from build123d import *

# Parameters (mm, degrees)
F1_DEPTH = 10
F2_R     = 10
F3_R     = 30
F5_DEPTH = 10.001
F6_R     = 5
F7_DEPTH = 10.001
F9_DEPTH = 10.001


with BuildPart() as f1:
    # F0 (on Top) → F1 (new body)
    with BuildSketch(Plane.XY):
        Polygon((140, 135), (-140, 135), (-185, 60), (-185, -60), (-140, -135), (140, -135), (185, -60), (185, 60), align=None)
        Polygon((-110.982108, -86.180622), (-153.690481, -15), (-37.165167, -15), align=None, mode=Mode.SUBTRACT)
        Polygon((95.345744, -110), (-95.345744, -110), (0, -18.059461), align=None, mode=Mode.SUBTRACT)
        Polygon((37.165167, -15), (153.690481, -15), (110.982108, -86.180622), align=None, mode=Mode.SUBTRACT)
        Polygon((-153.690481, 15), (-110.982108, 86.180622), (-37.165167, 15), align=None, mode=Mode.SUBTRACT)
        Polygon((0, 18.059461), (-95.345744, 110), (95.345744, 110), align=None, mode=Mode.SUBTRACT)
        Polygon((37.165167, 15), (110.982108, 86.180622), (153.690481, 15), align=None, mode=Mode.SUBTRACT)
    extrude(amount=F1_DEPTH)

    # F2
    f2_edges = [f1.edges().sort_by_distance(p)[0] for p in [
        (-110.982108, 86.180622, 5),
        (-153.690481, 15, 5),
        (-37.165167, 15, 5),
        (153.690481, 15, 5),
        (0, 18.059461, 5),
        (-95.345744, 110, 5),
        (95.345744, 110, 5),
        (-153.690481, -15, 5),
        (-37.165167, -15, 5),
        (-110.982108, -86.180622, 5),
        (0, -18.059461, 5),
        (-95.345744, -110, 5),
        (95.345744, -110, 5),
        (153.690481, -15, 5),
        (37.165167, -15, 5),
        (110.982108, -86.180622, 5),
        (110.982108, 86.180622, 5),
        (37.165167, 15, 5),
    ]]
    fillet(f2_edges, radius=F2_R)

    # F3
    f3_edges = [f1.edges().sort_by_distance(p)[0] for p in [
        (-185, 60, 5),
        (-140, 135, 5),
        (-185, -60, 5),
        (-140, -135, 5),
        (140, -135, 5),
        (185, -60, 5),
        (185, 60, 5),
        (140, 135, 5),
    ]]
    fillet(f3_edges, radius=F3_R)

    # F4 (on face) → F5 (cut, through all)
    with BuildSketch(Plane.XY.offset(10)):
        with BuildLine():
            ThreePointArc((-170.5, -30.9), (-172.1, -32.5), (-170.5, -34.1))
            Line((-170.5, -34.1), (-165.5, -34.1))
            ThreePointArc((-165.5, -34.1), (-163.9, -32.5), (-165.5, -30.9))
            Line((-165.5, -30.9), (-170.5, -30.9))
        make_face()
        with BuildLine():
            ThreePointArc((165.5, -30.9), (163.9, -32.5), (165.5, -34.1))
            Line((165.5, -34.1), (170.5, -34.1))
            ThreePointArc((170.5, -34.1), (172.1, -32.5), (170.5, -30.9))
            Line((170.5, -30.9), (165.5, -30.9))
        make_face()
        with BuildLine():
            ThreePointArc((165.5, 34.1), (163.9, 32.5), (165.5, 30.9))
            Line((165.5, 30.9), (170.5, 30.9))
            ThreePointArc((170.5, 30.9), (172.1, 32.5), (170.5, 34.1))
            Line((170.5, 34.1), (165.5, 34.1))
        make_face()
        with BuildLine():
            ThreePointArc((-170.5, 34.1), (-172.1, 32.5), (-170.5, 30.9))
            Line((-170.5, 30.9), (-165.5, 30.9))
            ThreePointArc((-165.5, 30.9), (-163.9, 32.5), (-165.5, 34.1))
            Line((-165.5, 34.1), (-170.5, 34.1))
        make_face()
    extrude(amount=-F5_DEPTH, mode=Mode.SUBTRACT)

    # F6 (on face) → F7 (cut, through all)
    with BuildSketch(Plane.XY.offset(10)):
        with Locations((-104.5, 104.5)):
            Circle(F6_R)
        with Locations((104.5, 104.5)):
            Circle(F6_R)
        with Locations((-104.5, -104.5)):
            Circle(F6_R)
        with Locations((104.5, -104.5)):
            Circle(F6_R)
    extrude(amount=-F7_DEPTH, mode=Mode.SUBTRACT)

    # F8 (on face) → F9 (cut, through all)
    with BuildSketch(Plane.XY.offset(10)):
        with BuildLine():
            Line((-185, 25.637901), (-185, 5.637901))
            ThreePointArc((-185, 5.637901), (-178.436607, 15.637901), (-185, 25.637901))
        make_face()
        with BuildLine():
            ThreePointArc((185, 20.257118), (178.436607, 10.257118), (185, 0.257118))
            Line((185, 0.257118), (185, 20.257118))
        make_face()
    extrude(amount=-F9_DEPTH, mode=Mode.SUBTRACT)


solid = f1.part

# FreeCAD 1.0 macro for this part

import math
import FreeCAD as App
import Part
import Sketcher
from FreeCAD import Vector


def edges_at(feature, points):
    """Names of the edges that pass closest to the given points."""
    edges = feature.Shape.Edges
    near = lambda p: min(range(len(edges)), key=lambda i: edges[i].distToShape(Part.Vertex(*p))[0])
    return sorted({f"Edge{near(p) + 1}" for p in points})

doc = App.newDocument("Part")
body = doc.addObject("PartDesign::Body", "Body")

sketch1 = body.newObject("Sketcher::SketchObject", "Sketch")
sketch1.AttachmentSupport = (doc.getObject("XY_Plane"), [""])
sketch1.MapMode = "FlatFace"
sketch1.addGeometry(Part.LineSegment(Vector(140, 135, 0), Vector(-140, 135, 0)), False)
sketch1.addGeometry(Part.LineSegment(Vector(-140, 135, 0), Vector(-185, 60, 0)), False)
sketch1.addGeometry(Part.LineSegment(Vector(-185, 60, 0), Vector(-185, -60, 0)), False)
sketch1.addGeometry(Part.LineSegment(Vector(-185, -60, 0), Vector(-140, -135, 0)), False)
sketch1.addGeometry(Part.LineSegment(Vector(-140, -135, 0), Vector(140, -135, 0)), False)
sketch1.addGeometry(Part.LineSegment(Vector(140, -135, 0), Vector(185, -60, 0)), False)
sketch1.addGeometry(Part.LineSegment(Vector(185, -60, 0), Vector(185, 60, 0)), False)
sketch1.addGeometry(Part.LineSegment(Vector(185, 60, 0), Vector(140, 135, 0)), False)
sketch1.addGeometry(Part.LineSegment(Vector(0, -18, 0), Vector(95, -110, 0)), False)
sketch1.addGeometry(Part.LineSegment(Vector(95, -110, 0), Vector(-95, -110, 0)), False)
sketch1.addGeometry(Part.LineSegment(Vector(-95, -110, 0), Vector(0, -18, 0)), False)
sketch1.addGeometry(Part.LineSegment(Vector(-37, -15, 0), Vector(-111, -86, 0)), False)
sketch1.addGeometry(Part.LineSegment(Vector(-111, -86, 0), Vector(-154, -15, 0)), False)
sketch1.addGeometry(Part.LineSegment(Vector(-154, -15, 0), Vector(-37, -15, 0)), False)
sketch1.addGeometry(Part.LineSegment(Vector(111, -86, 0), Vector(37, -15, 0)), False)
sketch1.addGeometry(Part.LineSegment(Vector(37, -15, 0), Vector(154, -15, 0)), False)
sketch1.addGeometry(Part.LineSegment(Vector(154, -15, 0), Vector(111, -86, 0)), False)
sketch1.addGeometry(Part.LineSegment(Vector(-37, 15, 0), Vector(-154, 15, 0)), False)
sketch1.addGeometry(Part.LineSegment(Vector(-154, 15, 0), Vector(-111, 86, 0)), False)
sketch1.addGeometry(Part.LineSegment(Vector(-111, 86, 0), Vector(-37, 15, 0)), False)
sketch1.addGeometry(Part.LineSegment(Vector(95, 110, 0), Vector(0, 18, 0)), False)
sketch1.addGeometry(Part.LineSegment(Vector(0, 18, 0), Vector(-95, 110, 0)), False)
sketch1.addGeometry(Part.LineSegment(Vector(-95, 110, 0), Vector(95, 110, 0)), False)
sketch1.addGeometry(Part.LineSegment(Vector(154, 15, 0), Vector(37, 15, 0)), False)
sketch1.addGeometry(Part.LineSegment(Vector(37, 15, 0), Vector(111, 86, 0)), False)
sketch1.addGeometry(Part.LineSegment(Vector(111, 86, 0), Vector(154, 15, 0)), False)
sketch1.addConstraint(Sketcher.Constraint("Coincident", 0, 2, 1, 1))
sketch1.addConstraint(Sketcher.Constraint("Coincident", 1, 2, 2, 1))
sketch1.addConstraint(Sketcher.Constraint("Coincident", 2, 2, 3, 1))
sketch1.addConstraint(Sketcher.Constraint("Coincident", 3, 2, 4, 1))
sketch1.addConstraint(Sketcher.Constraint("Coincident", 4, 2, 5, 1))
sketch1.addConstraint(Sketcher.Constraint("Coincident", 5, 2, 6, 1))
sketch1.addConstraint(Sketcher.Constraint("Coincident", 6, 2, 7, 1))
sketch1.addConstraint(Sketcher.Constraint("Coincident", 7, 2, 0, 1))
sketch1.addConstraint(Sketcher.Constraint("Coincident", 8, 2, 9, 1))
sketch1.addConstraint(Sketcher.Constraint("Coincident", 9, 2, 10, 1))
sketch1.addConstraint(Sketcher.Constraint("Coincident", 10, 2, 8, 1))
sketch1.addConstraint(Sketcher.Constraint("Coincident", 11, 2, 12, 1))
sketch1.addConstraint(Sketcher.Constraint("Coincident", 12, 2, 13, 1))
sketch1.addConstraint(Sketcher.Constraint("Coincident", 13, 2, 11, 1))
sketch1.addConstraint(Sketcher.Constraint("Coincident", 14, 2, 15, 1))
sketch1.addConstraint(Sketcher.Constraint("Coincident", 15, 2, 16, 1))
sketch1.addConstraint(Sketcher.Constraint("Coincident", 16, 2, 14, 1))
sketch1.addConstraint(Sketcher.Constraint("Coincident", 17, 2, 18, 1))
sketch1.addConstraint(Sketcher.Constraint("Coincident", 18, 2, 19, 1))
sketch1.addConstraint(Sketcher.Constraint("Coincident", 19, 2, 17, 1))
sketch1.addConstraint(Sketcher.Constraint("Coincident", 20, 2, 21, 1))
sketch1.addConstraint(Sketcher.Constraint("Coincident", 21, 2, 22, 1))
sketch1.addConstraint(Sketcher.Constraint("Coincident", 22, 2, 20, 1))
sketch1.addConstraint(Sketcher.Constraint("Coincident", 23, 2, 24, 1))
sketch1.addConstraint(Sketcher.Constraint("Coincident", 24, 2, 25, 1))
sketch1.addConstraint(Sketcher.Constraint("Coincident", 25, 2, 23, 1))
sketch1.addConstraint(Sketcher.Constraint("Horizontal", 0))
sketch1.addConstraint(Sketcher.Constraint("Vertical", 2))
sketch1.addConstraint(Sketcher.Constraint("Horizontal", 4))
sketch1.addConstraint(Sketcher.Constraint("Vertical", 6))
sketch1.addConstraint(Sketcher.Constraint("Horizontal", 9))
sketch1.addConstraint(Sketcher.Constraint("Horizontal", 13))
sketch1.addConstraint(Sketcher.Constraint("Horizontal", 15))
sketch1.addConstraint(Sketcher.Constraint("Horizontal", 17))
sketch1.addConstraint(Sketcher.Constraint("Horizontal", 22))
sketch1.addConstraint(Sketcher.Constraint("Horizontal", 23))
sketch1.addConstraint(Sketcher.Constraint("Symmetric", 0, 2, 4, 2, -1, 1))
sketch1.addConstraint(Sketcher.Constraint("Symmetric", 1, 2, 5, 2, -1, 1))
sketch1.addConstraint(Sketcher.Constraint("Symmetric", 15, 2, 17, 2, -1, 1))
sketch1.addConstraint(Sketcher.Constraint("Symmetric", 16, 2, 18, 2, -1, 1))
sketch1.addConstraint(Sketcher.Constraint("Symmetric", 10, 2, 20, 2, -1, 1))
sketch1.addConstraint(Sketcher.Constraint("Symmetric", 8, 2, 21, 2, -1, 1))
sketch1.addConstraint(Sketcher.Constraint("Symmetric", 13, 2, 23, 2, -1, 1))
sketch1.addConstraint(Sketcher.Constraint("Symmetric", 11, 2, 24, 2, -1, 1))
sketch1.addConstraint(Sketcher.Constraint("Symmetric", 13, 2, 14, 2, -2))
sketch1.addConstraint(Sketcher.Constraint("Symmetric", 11, 2, 16, 2, -2))
sketch1.addConstraint(Sketcher.Constraint("PointOnObject", 10, 2, -2))
sketch1.addConstraint(Sketcher.Constraint("Parallel", 3, 7))
sketch1.addConstraint(Sketcher.Constraint("Parallel", 10, 11))
sketch1.addConstraint(Sketcher.Constraint("Parallel", 7, 12))
sketch1.addConstraint(Sketcher.Constraint("Parallel", 8, 14))
sketch1.addConstraint(Sketcher.Constraint("Parallel", 5, 16))
sketch1.addConstraint(Sketcher.Constraint("Parallel", 14, 19))
sketch1.addConstraint(Sketcher.Constraint("Parallel", 11, 20))
sketch1.addConstraint(Sketcher.Constraint("Parallel", 12, 25))
sketch1.addConstraint(Sketcher.Constraint("Horizontal", 2, 2, 5, 2))
sketch1.addConstraint(Sketcher.Constraint("Horizontal", 1, 2, 6, 2))
sketch1.addConstraint(Sketcher.Constraint("Vertical", 0, 2, 3, 2))
sketch1.addConstraint(Sketcher.Constraint("DistanceX", 0, 2, 0, 1, 280.0))
sketch1.addConstraint(Sketcher.Constraint("DistanceY", 2, 2, 2, 1, 120.0))
sketch1.addConstraint(Sketcher.Constraint("DistanceY", -1, 1, 0, 2, 135.0))
sketch1.addConstraint(Sketcher.Constraint("DistanceX", 1, 2, -1, 1, 185.0))
sketch1.addConstraint(Sketcher.Constraint("DistanceY", 8, 2, -1, 1, 110.0))
sketch1.addConstraint(Sketcher.Constraint("DistanceY", 12, 2, -1, 1, 15.0))
sketch1.addConstraint(Sketcher.Constraint("DistanceX", 9, 2, 9, 1, 190.691488))
sketch1.addConstraint(Sketcher.Constraint("Distance", 8, 132.453288))
sketch1.addConstraint(Sketcher.Constraint("DistanceX", 13, 1, 13, 2, 116.525314))
sketch1.addConstraint(Sketcher.Constraint("DistanceX", 12, 2, -1, 1, 153.690481))
pad1 = body.newObject("PartDesign::Pad", "Pad")
pad1.Profile = sketch1
pad1.Length = 10
doc.recompute()

fillet = body.newObject("PartDesign::Fillet", "Fillet")
fillet.Base = (pad1, edges_at(pad1, [
    (-110.982, 86.181, 5),
    (-153.69, 15, 5),
    (-37.165, 15, 5),
    (153.69, 15, 5),
    (0, 18.059, 5),
    (-95.346, 110, 5),
    (95.346, 110, 5),
    (-153.69, -15, 5),
    (-37.165, -15, 5),
    (-110.982, -86.181, 5),
    (0, -18.059, 5),
    (-95.346, -110, 5),
    (95.346, -110, 5),
    (153.69, -15, 5),
    (37.165, -15, 5),
    (110.982, -86.181, 5),
    (110.982, 86.181, 5),
    (37.165, 15, 5),
]))
fillet.Radius = 10
doc.recompute()

fillet2 = body.newObject("PartDesign::Fillet", "Fillet001")
fillet2.Base = (fillet, edges_at(fillet, [
    (-185, 60, 5),
    (-140, 135, 5),
    (-185, -60, 5),
    (-140, -135, 5),
    (140, -135, 5),
    (185, -60, 5),
    (185, 60, 5),
    (140, 135, 5),
]))
fillet2.Radius = 30

sketch2 = body.newObject("Sketcher::SketchObject", "Sketch001")
sketch2.AttachmentSupport = (doc.getObject("XY_Plane"), [""])
sketch2.MapMode = "FlatFace"
sketch2.AttachmentOffset = App.Placement(Vector(0, 0, 10), App.Rotation())
sketch2.addGeometry(Part.ArcOfCircle(Part.Circle(Vector(-170.5, -32.5, 0), Vector(0, 0, 1), 1.6), math.radians(90), math.radians(270)), False)
sketch2.addGeometry(Part.LineSegment(Vector(-170.5, -34.1, 0), Vector(-165.5, -34.1, 0)), False)
sketch2.addGeometry(Part.ArcOfCircle(Part.Circle(Vector(-165.5, -32.5, 0), Vector(0, 0, 1), 1.6), math.radians(-90), math.radians(90)), False)
sketch2.addGeometry(Part.LineSegment(Vector(-165.5, -30.9, 0), Vector(-170.5, -30.9, 0)), False)
sketch2.addGeometry(Part.ArcOfCircle(Part.Circle(Vector(165.5, -32.5, 0), Vector(0, 0, 1), 1.6), math.radians(90), math.radians(270)), False)
sketch2.addGeometry(Part.LineSegment(Vector(165.5, -34.1, 0), Vector(170.5, -34.1, 0)), False)
sketch2.addGeometry(Part.ArcOfCircle(Part.Circle(Vector(170.5, -32.5, 0), Vector(0, 0, 1), 1.6), math.radians(-90), math.radians(90)), False)
sketch2.addGeometry(Part.LineSegment(Vector(170.5, -30.9, 0), Vector(165.5, -30.9, 0)), False)
sketch2.addGeometry(Part.ArcOfCircle(Part.Circle(Vector(165.5, 32.5, 0), Vector(0, 0, 1), 1.6), math.radians(90), math.radians(270)), False)
sketch2.addGeometry(Part.LineSegment(Vector(165.5, 30.9, 0), Vector(170.5, 30.9, 0)), False)
sketch2.addGeometry(Part.ArcOfCircle(Part.Circle(Vector(170.5, 32.5, 0), Vector(0, 0, 1), 1.6), math.radians(-90), math.radians(90)), False)
sketch2.addGeometry(Part.LineSegment(Vector(170.5, 34.1, 0), Vector(165.5, 34.1, 0)), False)
sketch2.addGeometry(Part.ArcOfCircle(Part.Circle(Vector(-170.5, 32.5, 0), Vector(0, 0, 1), 1.6), math.radians(90), math.radians(270)), False)
sketch2.addGeometry(Part.LineSegment(Vector(-170.5, 30.9, 0), Vector(-165.5, 30.9, 0)), False)
sketch2.addGeometry(Part.ArcOfCircle(Part.Circle(Vector(-165.5, 32.5, 0), Vector(0, 0, 1), 1.6), math.radians(-90), math.radians(90)), False)
sketch2.addGeometry(Part.LineSegment(Vector(-165.5, 34.1, 0), Vector(-170.5, 34.1, 0)), False)
sketch2.addConstraint(Sketcher.Constraint("Tangent", 0, 2, 1, 1))
sketch2.addConstraint(Sketcher.Constraint("Tangent", 1, 2, 2, 1))
sketch2.addConstraint(Sketcher.Constraint("Tangent", 2, 2, 3, 1))
sketch2.addConstraint(Sketcher.Constraint("Tangent", 3, 2, 0, 1))
sketch2.addConstraint(Sketcher.Constraint("Tangent", 4, 2, 5, 1))
sketch2.addConstraint(Sketcher.Constraint("Tangent", 5, 2, 6, 1))
sketch2.addConstraint(Sketcher.Constraint("Tangent", 6, 2, 7, 1))
sketch2.addConstraint(Sketcher.Constraint("Tangent", 7, 2, 4, 1))
sketch2.addConstraint(Sketcher.Constraint("Tangent", 8, 2, 9, 1))
sketch2.addConstraint(Sketcher.Constraint("Tangent", 9, 2, 10, 1))
sketch2.addConstraint(Sketcher.Constraint("Tangent", 10, 2, 11, 1))
sketch2.addConstraint(Sketcher.Constraint("Tangent", 11, 2, 8, 1))
sketch2.addConstraint(Sketcher.Constraint("Tangent", 12, 2, 13, 1))
sketch2.addConstraint(Sketcher.Constraint("Tangent", 13, 2, 14, 1))
sketch2.addConstraint(Sketcher.Constraint("Tangent", 14, 2, 15, 1))
sketch2.addConstraint(Sketcher.Constraint("Tangent", 15, 2, 12, 1))
sketch2.addConstraint(Sketcher.Constraint("Horizontal", 1))
sketch2.addConstraint(Sketcher.Constraint("Horizontal", 3))
sketch2.addConstraint(Sketcher.Constraint("Horizontal", 5))
sketch2.addConstraint(Sketcher.Constraint("Horizontal", 7))
sketch2.addConstraint(Sketcher.Constraint("Horizontal", 9))
sketch2.addConstraint(Sketcher.Constraint("Horizontal", 11))
sketch2.addConstraint(Sketcher.Constraint("Horizontal", 13))
sketch2.addConstraint(Sketcher.Constraint("Horizontal", 15))
sketch2.addConstraint(Sketcher.Constraint("Equal", 2, 4))
sketch2.addConstraint(Sketcher.Constraint("Equal", 6, 8))
sketch2.addConstraint(Sketcher.Constraint("Equal", 10, 12))
sketch2.addConstraint(Sketcher.Constraint("Symmetric", 2, 3, 8, 3, -1, 1))
sketch2.addConstraint(Sketcher.Constraint("Symmetric", 6, 3, 12, 3, -1, 1))
sketch2.addConstraint(Sketcher.Constraint("Symmetric", 2, 3, 4, 3, -2))
sketch2.addConstraint(Sketcher.Constraint("Vertical", 6, 3, 10, 3))
sketch2.addConstraint(Sketcher.Constraint("Vertical", 0, 3, 12, 3))
sketch2.addConstraint(Sketcher.Constraint("Vertical", 2, 3, 14, 3))
sketch2.addConstraint(Sketcher.Constraint("Radius", 0, 1.6))
sketch2.addConstraint(Sketcher.Constraint("DistanceX", 1, 1, 1, 2, 5.0))
sketch2.addConstraint(Sketcher.Constraint("DistanceX", 2, 3, 4, 3, 331.0))
sketch2.addConstraint(Sketcher.Constraint("DistanceY", 4, 3, 8, 3, 65.0))
pocket1 = body.newObject("PartDesign::Pocket", "Pocket")
pocket1.Profile = sketch2
pocket1.Type = "ThroughAll"

sketch3 = body.newObject("Sketcher::SketchObject", "Sketch002")
sketch3.AttachmentSupport = (doc.getObject("XY_Plane"), [""])
sketch3.MapMode = "FlatFace"
sketch3.AttachmentOffset = App.Placement(Vector(0, 0, 10), App.Rotation())
sketch3.addGeometry(Part.Circle(Vector(-104, 104, 0), Vector(0, 0, 1), 5), False)
sketch3.addGeometry(Part.Circle(Vector(104, 104, 0), Vector(0, 0, 1), 5), False)
sketch3.addGeometry(Part.Circle(Vector(-104, -104, 0), Vector(0, 0, 1), 5), False)
sketch3.addGeometry(Part.Circle(Vector(104, -104, 0), Vector(0, 0, 1), 5), False)
sketch3.addConstraint(Sketcher.Constraint("Equal", 0, 1))
sketch3.addConstraint(Sketcher.Constraint("Equal", 1, 2))
sketch3.addConstraint(Sketcher.Constraint("Equal", 2, 3))
sketch3.addConstraint(Sketcher.Constraint("Symmetric", 1, 3, 2, 3, -1, 1))
sketch3.addConstraint(Sketcher.Constraint("Symmetric", 0, 3, 3, 3, -1, 1))
sketch3.addConstraint(Sketcher.Constraint("Symmetric", 0, 3, 1, 3, -2))
sketch3.addConstraint(Sketcher.Constraint("Diameter", 0, 10.0))
sketch3.addConstraint(Sketcher.Constraint("DistanceX", 0, 3, 1, 3, 209.0))
sketch3.addConstraint(Sketcher.Constraint("DistanceY", 2, 3, 0, 3, 209.0))
pocket2 = body.newObject("PartDesign::Pocket", "Pocket001")
pocket2.Profile = sketch3
pocket2.Type = "ThroughAll"

sketch4 = body.newObject("Sketcher::SketchObject", "Sketch003")
sketch4.AttachmentSupport = (doc.getObject("XY_Plane"), [""])
sketch4.MapMode = "FlatFace"
sketch4.AttachmentOffset = App.Placement(Vector(0, 0, 10), App.Rotation())
sketch4.addGeometry(Part.LineSegment(Vector(-185, 26, 0), Vector(-185, 6, 0)), False)
sketch4.addGeometry(Part.ArcOfCircle(Part.Circle(Vector(-189, 16, 0), Vector(0, 0, 1), 11), math.radians(-67), math.radians(67)), False)
sketch4.addGeometry(Part.ArcOfCircle(Part.Circle(Vector(189, 10, 0), Vector(0, 0, 1), 11), math.radians(113), math.radians(247)), False)
sketch4.addGeometry(Part.LineSegment(Vector(185, 0, 0), Vector(185, 20, 0)), False)
sketch4.addConstraint(Sketcher.Constraint("Coincident", 0, 1, 1, 2))
sketch4.addConstraint(Sketcher.Constraint("Coincident", 1, 1, 0, 2))
sketch4.addConstraint(Sketcher.Constraint("Coincident", 2, 1, 3, 2))
sketch4.addConstraint(Sketcher.Constraint("Coincident", 3, 1, 2, 2))
sketch4.addConstraint(Sketcher.Constraint("Vertical", 0))
sketch4.addConstraint(Sketcher.Constraint("Vertical", 3))
sketch4.addConstraint(Sketcher.Constraint("Equal", 1, 2))
sketch4.addConstraint(Sketcher.Constraint("Equal", 0, 3))
sketch4.addConstraint(Sketcher.Constraint("DistanceY", 0, 2, 0, 1, 20.0))
sketch4.addConstraint(Sketcher.Constraint("DistanceX", 0, 1, -1, 1, 185.0))
sketch4.addConstraint(Sketcher.Constraint("DistanceX", -1, 1, 2, 1, 185.0))
sketch4.addConstraint(Sketcher.Constraint("Radius", 1, 10.899707))
sketch4.addConstraint(Sketcher.Constraint("DistanceY", -1, 1, 1, 3, 15.637901))
sketch4.addConstraint(Sketcher.Constraint("DistanceY", -1, 1, 2, 3, 10.257118))
pocket3 = body.newObject("PartDesign::Pocket", "Pocket002")
pocket3.Profile = sketch4
pocket3.Type = "ThroughAll"

doc.recompute()
